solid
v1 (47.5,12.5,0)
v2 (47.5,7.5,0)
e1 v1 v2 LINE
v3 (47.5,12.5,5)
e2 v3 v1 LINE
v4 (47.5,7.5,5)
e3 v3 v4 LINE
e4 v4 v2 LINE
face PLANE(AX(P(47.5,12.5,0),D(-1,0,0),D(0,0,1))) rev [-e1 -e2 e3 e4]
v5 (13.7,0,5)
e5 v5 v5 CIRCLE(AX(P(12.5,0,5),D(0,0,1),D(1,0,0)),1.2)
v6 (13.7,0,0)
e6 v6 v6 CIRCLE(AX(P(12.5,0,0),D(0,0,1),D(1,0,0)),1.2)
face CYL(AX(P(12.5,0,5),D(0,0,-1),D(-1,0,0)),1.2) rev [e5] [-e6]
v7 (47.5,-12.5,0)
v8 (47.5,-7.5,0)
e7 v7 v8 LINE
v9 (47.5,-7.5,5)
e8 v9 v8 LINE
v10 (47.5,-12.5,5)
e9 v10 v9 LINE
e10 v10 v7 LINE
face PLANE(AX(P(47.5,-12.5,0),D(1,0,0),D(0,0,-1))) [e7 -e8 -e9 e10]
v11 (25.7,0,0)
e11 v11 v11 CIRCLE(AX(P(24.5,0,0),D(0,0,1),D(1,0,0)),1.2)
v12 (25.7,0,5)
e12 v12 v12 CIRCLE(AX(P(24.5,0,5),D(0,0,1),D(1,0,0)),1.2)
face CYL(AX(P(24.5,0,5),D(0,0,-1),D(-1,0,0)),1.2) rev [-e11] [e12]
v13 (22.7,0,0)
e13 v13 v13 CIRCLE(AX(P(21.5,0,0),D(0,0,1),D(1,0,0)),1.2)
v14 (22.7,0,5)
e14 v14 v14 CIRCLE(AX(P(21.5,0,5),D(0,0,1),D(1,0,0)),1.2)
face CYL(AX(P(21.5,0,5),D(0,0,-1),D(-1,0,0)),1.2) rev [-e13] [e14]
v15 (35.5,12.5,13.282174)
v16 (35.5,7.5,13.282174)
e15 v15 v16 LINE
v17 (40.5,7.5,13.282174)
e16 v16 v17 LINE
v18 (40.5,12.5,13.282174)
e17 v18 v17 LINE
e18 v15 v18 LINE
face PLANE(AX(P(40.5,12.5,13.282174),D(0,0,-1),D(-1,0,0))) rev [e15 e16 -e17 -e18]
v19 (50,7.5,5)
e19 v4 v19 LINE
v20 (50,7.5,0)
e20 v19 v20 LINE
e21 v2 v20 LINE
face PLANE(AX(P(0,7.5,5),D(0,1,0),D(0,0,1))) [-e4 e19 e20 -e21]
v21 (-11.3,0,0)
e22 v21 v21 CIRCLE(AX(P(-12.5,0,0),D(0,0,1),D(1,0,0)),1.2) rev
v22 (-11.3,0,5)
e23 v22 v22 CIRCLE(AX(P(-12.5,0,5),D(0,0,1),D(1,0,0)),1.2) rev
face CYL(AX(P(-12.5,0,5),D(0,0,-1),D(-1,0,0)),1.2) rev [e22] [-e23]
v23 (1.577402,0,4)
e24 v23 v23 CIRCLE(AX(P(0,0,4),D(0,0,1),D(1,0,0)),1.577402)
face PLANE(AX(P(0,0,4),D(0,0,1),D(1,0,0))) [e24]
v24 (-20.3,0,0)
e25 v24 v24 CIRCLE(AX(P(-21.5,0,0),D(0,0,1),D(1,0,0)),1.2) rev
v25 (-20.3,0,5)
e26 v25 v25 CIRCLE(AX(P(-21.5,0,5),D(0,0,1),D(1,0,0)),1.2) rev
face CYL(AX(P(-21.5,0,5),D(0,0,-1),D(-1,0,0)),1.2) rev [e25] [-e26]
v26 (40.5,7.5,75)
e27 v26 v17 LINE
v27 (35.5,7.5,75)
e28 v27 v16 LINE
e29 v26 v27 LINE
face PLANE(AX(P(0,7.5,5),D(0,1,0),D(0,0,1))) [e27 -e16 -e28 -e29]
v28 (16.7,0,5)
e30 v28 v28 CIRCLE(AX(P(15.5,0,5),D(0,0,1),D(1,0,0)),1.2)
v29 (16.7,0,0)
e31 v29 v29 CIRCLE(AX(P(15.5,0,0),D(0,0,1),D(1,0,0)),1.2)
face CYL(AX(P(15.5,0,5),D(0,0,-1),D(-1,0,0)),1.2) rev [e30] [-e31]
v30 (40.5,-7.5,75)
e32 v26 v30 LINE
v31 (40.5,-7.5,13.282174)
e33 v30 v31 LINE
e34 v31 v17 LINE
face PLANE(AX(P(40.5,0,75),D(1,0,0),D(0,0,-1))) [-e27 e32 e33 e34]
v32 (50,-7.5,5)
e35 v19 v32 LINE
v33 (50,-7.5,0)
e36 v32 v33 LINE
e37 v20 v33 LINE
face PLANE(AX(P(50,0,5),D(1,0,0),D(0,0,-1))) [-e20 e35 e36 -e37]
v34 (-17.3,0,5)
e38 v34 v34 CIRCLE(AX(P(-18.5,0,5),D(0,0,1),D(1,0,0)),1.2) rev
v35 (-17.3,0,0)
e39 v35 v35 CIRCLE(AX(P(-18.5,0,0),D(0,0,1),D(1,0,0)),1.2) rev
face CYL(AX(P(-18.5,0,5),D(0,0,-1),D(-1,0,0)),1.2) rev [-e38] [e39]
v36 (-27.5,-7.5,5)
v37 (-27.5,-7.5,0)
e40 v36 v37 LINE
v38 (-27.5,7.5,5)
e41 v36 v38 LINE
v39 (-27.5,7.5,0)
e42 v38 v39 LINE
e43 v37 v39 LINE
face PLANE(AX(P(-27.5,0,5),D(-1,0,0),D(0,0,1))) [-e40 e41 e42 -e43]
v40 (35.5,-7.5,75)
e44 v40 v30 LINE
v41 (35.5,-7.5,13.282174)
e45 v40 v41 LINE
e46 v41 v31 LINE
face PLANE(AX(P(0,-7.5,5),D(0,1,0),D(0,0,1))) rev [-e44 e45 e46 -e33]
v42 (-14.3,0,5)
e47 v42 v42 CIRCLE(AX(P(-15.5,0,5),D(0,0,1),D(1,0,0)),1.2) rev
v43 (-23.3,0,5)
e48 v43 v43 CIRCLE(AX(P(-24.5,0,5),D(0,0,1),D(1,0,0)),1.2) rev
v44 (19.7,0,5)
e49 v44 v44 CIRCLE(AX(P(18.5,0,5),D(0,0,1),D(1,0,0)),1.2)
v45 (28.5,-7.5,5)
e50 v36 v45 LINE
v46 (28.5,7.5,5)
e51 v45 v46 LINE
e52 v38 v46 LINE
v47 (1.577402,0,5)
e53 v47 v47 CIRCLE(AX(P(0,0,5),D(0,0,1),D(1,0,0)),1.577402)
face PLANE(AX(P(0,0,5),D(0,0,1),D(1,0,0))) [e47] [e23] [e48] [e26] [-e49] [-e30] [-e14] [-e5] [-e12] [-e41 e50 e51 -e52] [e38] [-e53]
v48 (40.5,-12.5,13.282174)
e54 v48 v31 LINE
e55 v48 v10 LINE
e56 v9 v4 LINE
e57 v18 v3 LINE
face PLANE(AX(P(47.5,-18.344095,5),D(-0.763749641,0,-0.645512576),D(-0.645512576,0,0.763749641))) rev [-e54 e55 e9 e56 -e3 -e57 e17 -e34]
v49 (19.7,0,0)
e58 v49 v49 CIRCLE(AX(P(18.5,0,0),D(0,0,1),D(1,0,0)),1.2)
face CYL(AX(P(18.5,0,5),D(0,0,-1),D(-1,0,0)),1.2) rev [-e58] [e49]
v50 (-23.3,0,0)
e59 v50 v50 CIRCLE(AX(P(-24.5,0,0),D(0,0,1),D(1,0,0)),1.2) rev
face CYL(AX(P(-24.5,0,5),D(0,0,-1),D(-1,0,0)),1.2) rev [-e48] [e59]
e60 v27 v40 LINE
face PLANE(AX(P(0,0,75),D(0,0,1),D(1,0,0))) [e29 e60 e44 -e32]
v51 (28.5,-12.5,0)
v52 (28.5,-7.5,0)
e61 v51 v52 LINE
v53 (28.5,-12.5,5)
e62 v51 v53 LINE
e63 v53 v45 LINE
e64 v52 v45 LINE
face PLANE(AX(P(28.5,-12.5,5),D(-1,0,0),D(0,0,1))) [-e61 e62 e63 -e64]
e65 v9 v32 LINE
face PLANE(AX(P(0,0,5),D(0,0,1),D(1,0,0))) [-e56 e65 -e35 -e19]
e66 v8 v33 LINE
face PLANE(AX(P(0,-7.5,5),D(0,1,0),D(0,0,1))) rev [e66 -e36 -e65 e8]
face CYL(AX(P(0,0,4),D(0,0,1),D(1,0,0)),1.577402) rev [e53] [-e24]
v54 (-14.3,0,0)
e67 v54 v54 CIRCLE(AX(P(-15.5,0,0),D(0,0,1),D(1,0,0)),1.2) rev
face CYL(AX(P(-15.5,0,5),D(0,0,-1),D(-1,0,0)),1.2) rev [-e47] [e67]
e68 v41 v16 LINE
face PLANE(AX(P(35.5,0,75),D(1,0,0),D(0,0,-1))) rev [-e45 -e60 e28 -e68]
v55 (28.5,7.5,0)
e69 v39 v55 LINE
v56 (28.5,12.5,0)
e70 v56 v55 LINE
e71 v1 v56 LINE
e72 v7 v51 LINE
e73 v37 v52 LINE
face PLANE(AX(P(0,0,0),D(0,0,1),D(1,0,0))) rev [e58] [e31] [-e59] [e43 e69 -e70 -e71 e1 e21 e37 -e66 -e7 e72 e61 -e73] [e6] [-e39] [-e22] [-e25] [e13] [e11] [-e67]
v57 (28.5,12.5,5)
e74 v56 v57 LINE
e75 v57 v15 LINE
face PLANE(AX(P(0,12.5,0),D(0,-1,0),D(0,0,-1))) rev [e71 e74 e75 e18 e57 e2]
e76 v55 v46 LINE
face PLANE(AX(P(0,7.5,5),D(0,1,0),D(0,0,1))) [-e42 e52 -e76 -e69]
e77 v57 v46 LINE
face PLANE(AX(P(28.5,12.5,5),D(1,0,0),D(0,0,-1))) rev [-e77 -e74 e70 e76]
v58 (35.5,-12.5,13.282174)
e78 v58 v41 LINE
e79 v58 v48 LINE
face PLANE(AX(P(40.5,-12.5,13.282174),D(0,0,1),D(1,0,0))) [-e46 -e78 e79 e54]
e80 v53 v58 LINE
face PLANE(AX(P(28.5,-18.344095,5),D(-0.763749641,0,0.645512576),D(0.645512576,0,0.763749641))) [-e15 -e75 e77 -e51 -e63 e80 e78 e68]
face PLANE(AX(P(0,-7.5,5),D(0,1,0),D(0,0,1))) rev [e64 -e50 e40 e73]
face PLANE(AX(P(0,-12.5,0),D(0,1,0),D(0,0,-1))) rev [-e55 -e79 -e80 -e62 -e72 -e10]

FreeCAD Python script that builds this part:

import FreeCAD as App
import Part
import Sketcher

V = App.Vector


def add_polygon(sketch, points):
    """Adds a closed chain of lines whose ends are joined by coincident constraints."""
    first, n = sketch.GeometryCount, len(points)
    for a, b in zip(points, points[1:] + points[:1]):
        sketch.addGeometry(Part.LineSegment(App.Vector(*a, 0), App.Vector(*b, 0)), False)
    for i in range(n):
        sketch.addConstraint(Sketcher.Constraint("Coincident", first + i, 2, first + (i + 1) % n, 1))

doc = App.newDocument("Part")
params = doc.addObject("Spreadsheet::Sheet", "Params")
for row, (alias, value) in enumerate([
    ("sketch1_diameter", "2.4 mm"),
    ("sketch1_height", "15 mm"),
    ("sketch1_width", "77.5 mm"),
    ("pad1_length", "5 mm"),
    ("pocket1_length", "1 mm"),
    ("sketch3_width", "5 mm"),
    ("sketch3_height", "15 mm"),
    ("pad2_length", "70 mm"),
    ("sketch4_width", "7 mm"),
    ("pad3_length", "15 mm"),
    ("sketch5_width", "5 mm"),
    ("sketch5_width2", "19 mm"),
    ("pad4_length", "5 mm"),
], start=1):
    params.set(f"A{row}", alias)
    params.set(f"B{row}", "=" + value)
    params.setAlias(f"B{row}", alias)

body = doc.addObject("PartDesign::Body", "Body")

# Sketch on XY plane
sketch1 = body.newObject("Sketcher::SketchObject", "Sketch")
sketch1.AttachmentSupport = (doc.getObject("XY_Plane"), [""])
sketch1.MapMode = "FlatFace"
add_polygon(sketch1, [(-27.5, 7.5), (-27.5, -7.5), (50, -7.5), (50, 7.5)])  # lines 0-3
sketch1.addGeometry(Part.Circle(V(-24.5, 0, 0), V(0, 0, 1), 1.2), False)  # 4
sketch1.addGeometry(Part.Circle(V(-21.5, 0, 0), V(0, 0, 1), 1.2), False)  # 5
sketch1.addGeometry(Part.Circle(V(-18.5, 0, 0), V(0, 0, 1), 1.2), False)  # 6
sketch1.addGeometry(Part.Circle(V(-15.5, 0, 0), V(0, 0, 1), 1.2), False)  # 7
sketch1.addGeometry(Part.Circle(V(-12.5, 0, 0), V(0, 0, 1), 1.2), False)  # 8
sketch1.addGeometry(Part.Circle(V(12.5, 0, 0), V(0, 0, 1), 1.2), False)  # 9
sketch1.addGeometry(Part.Circle(V(15.5, 0, 0), V(0, 0, 1), 1.2), False)  # 10
sketch1.addGeometry(Part.Circle(V(18.5, 0, 0), V(0, 0, 1), 1.2), False)  # 11
sketch1.addGeometry(Part.Circle(V(21.5, 0, 0), V(0, 0, 1), 1.2), False)  # 12
sketch1.addGeometry(Part.Circle(V(24.5, 0, 0), V(0, 0, 1), 1.2), False)  # 13
sketch1.addConstraint([
    Sketcher.Constraint("Vertical", 0),
    Sketcher.Constraint("Horizontal", 1),
    Sketcher.Constraint("Vertical", 2),
    Sketcher.Constraint("Horizontal", 3),
    Sketcher.Constraint("Equal", 4, 5),
    Sketcher.Constraint("Equal", 5, 6),
    Sketcher.Constraint("Equal", 6, 7),
    Sketcher.Constraint("Equal", 7, 8),
    Sketcher.Constraint("Equal", 8, 9),
    Sketcher.Constraint("Equal", 9, 10),
    Sketcher.Constraint("Equal", 10, 11),
    Sketcher.Constraint("Equal", 11, 12),
    Sketcher.Constraint("Equal", 12, 13),
    Sketcher.Constraint("Symmetric", 8, 3, 9, 3, -1, 1),
    Sketcher.Constraint("Symmetric", 7, 3, 10, 3, -1, 1),
    Sketcher.Constraint("Symmetric", 6, 3, 11, 3, -1, 1),
    Sketcher.Constraint("Symmetric", 5, 3, 12, 3, -1, 1),
    Sketcher.Constraint("Symmetric", 4, 3, 13, 3, -1, 1),
    Sketcher.Constraint("PointOnObject", 4, 3, -1),
    Sketcher.Constraint("PointOnObject", 5, 3, -1),
    Sketcher.Constraint("PointOnObject", 6, 3, -1),
    Sketcher.Constraint("PointOnObject", 7, 3, -1),
    Sketcher.Constraint("PointOnObject", 8, 3, -1),
    Sketcher.Constraint("Diameter", 4, 2.4),
    Sketcher.Constraint("DistanceY", 0, 2, 0, 1, 15.0),
    Sketcher.Constraint("DistanceX", 1, 1, 1, 2, 77.5),
    Sketcher.Constraint("DistanceX", -1, 1, 1, 2, 50.0),
    Sketcher.Constraint("DistanceX", 4, 3, 5, 3, 3.0),
    Sketcher.Constraint("DistanceX", 5, 3, 6, 3, 3.0),
    Sketcher.Constraint("DistanceX", 6, 3, 7, 3, 3.0),
    Sketcher.Constraint("DistanceX", 7, 3, 8, 3, 3.0),
    Sketcher.Constraint("DistanceX", 8, 3, 9, 3, 25.0),
    Sketcher.Constraint("DistanceY", 0, 2, -1, 1, 7.5),
])
sketch1.setExpression("Constraints[27]", "Params.sketch1_diameter")
sketch1.setExpression("Constraints[28]", "Params.sketch1_height")
sketch1.setExpression("Constraints[29]", "Params.sketch1_width")
pad1 = body.newObject("PartDesign::Pad", "Pad")
pad1.Profile = sketch1
pad1.setExpression("Length", "Params.pad1_length")

# Sketch on XY plane
sketch2 = body.newObject("Sketcher::SketchObject", "Sketch001")
sketch2.AttachmentSupport = (doc.getObject("XY_Plane"), [""])
sketch2.MapMode = "FlatFace"
sketch2.AttachmentOffset = App.Placement(V(0, 0, 5), App.Rotation())
sketch2.addGeometry(Part.Circle(V(0, 0, 0), V(0, 0, 1), 1.6), False)
sketch2.addConstraint([
    Sketcher.Constraint("Coincident", 0, 3, -1, 1),
    Sketcher.Constraint("Diameter", 0, 3.154803),
])
pocket1 = body.newObject("PartDesign::Pocket", "Pocket")
pocket1.Profile = sketch2
pocket1.setExpression("Length", "Params.pocket1_length")

# Sketch on XY plane
sketch3 = body.newObject("Sketcher::SketchObject", "Sketch002")
sketch3.AttachmentSupport = (doc.getObject("XY_Plane"), [""])
sketch3.MapMode = "FlatFace"
sketch3.AttachmentOffset = App.Placement(V(0, 0, 5), App.Rotation())
add_polygon(sketch3, [(36, 8), (36, -8), (40, -8), (40, 8)])  # lines 0-3
sketch3.addConstraint([
    Sketcher.Constraint("Vertical", 0),
    Sketcher.Constraint("Horizontal", 1),
    Sketcher.Constraint("Vertical", 2),
    Sketcher.Constraint("Horizontal", 3),
    Sketcher.Constraint("DistanceX", 1, 1, 1, 2, 5.0),
    Sketcher.Constraint("DistanceY", 0, 2, 0, 1, 15.0),
    Sketcher.Constraint("DistanceX", -1, 1, 0, 2, 35.5),
    Sketcher.Constraint("DistanceY", 0, 2, -1, 1, 7.5),
])
sketch3.setExpression("Constraints[8]", "Params.sketch3_width")
sketch3.setExpression("Constraints[9]", "Params.sketch3_height")
pad2 = body.newObject("PartDesign::Pad", "Pad001")
pad2.Profile = sketch3
pad2.setExpression("Length", "Params.pad2_length")

# Sketch on XZ plane
sketch4 = body.newObject("Sketcher::SketchObject", "Sketch003")
sketch4.AttachmentSupport = (doc.getObject("XZ_Plane"), [""])
sketch4.MapMode = "FlatFace"
sketch4.AttachmentOffset = App.Placement(V(0, 0, -7.5), App.Rotation())
add_polygon(sketch4, [(28, 5), (36, 13), (36, 5)])  # lines 0-2
sketch4.addConstraint([
    Sketcher.Constraint("Vertical", 1),
    Sketcher.Constraint("Horizontal", 2),
    Sketcher.Constraint("DistanceX", 2, 2, 2, 1, 7.0),
    Sketcher.Constraint("DistanceY", -1, 1, 1, 2, 5.0),
    Sketcher.Constraint("DistanceX", -1, 1, 0, 2, 35.5),
    Sketcher.Constraint("DistanceY", 1, 2, 1, 1, 8.282174),
])
sketch4.setExpression("Constraints[5]", "Params.sketch4_width")
pad3 = body.newObject("PartDesign::Pad", "Pad002")
pad3.Profile = sketch4
pad3.setExpression("Length", "Params.pad3_length")
doc.recompute()

datumplane = body.newObject("PartDesign::Plane", "DatumPlane")
datumplane.AttachmentSupport = (doc.getObject("YZ_Plane"), [""])
datumplane.MapMode = "FlatFace"
datumplane.AttachmentOffset = App.Placement(V(0, 0, 38), App.Rotation())
mirrored = body.newObject("PartDesign::Mirrored", "Mirrored")
mirrored.Originals = [pad3]
mirrored.MirrorPlane = (datumplane, [""])
body.Tip = mirrored

# Sketch on XZ plane
sketch5 = body.newObject("Sketcher::SketchObject", "Sketch004")
sketch5.AttachmentSupport = (doc.getObject("XZ_Plane"), [""])
sketch5.MapMode = "FlatFace"
sketch5.AttachmentOffset = App.Placement(V(0, 0, -7.5), App.Rotation())
add_polygon(sketch5, [(28, 5), (36, 13), (40, 13), (48, 5), (48, 0), (28, 0)])  # lines 0-5
sketch5.addConstraint([
    Sketcher.Constraint("Horizontal", 1),
    Sketcher.Constraint("Vertical", 3),
    Sketcher.Constraint("Horizontal", 4),
    Sketcher.Constraint("Vertical", 5),
    Sketcher.Constraint("PointOnObject", 3, 2, -1),
    Sketcher.Constraint("Horizontal", 2, 2, 5, 2),
    Sketcher.Constraint("Equal", 1, 3),
    Sketcher.Constraint("Equal", 0, 2),
    Sketcher.Constraint("DistanceX", 1, 1, 1, 2, 5.0),
    Sketcher.Constraint("DistanceX", 4, 2, 4, 1, 19.0),
    Sketcher.Constraint("DistanceX", -1, 1, 0, 2, 35.5),
    Sketcher.Constraint("Distance", 0, 10.844095),
])
sketch5.setExpression("Constraints[14]", "Params.sketch5_width")
sketch5.setExpression("Constraints[15]", "Params.sketch5_width2")
pad4 = body.newObject("PartDesign::Pad", "Pad003")
pad4.Profile = sketch5
pad4.setExpression("Length", "Params.pad4_length")
pad4.Reversed = True
doc.recompute()

mirrored2 = body.newObject("PartDesign::Mirrored", "Mirrored001")
mirrored2.Originals = [pad4]
mirrored2.MirrorPlane = (doc.getObject("XZ_Plane"), [""])
body.Tip = mirrored2

doc.recompute()
